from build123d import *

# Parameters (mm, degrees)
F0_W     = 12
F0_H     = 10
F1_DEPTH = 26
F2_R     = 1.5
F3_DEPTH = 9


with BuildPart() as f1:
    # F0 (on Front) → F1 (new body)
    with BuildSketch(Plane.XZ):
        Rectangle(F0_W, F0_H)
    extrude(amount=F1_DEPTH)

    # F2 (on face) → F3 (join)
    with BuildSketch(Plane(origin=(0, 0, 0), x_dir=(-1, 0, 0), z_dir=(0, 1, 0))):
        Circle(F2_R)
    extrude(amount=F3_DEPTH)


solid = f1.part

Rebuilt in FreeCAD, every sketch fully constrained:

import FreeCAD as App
import Part
import Sketcher

V = App.Vector

doc = App.newDocument("Part")
body = doc.addObject("PartDesign::Body", "Body")

# Sketch on XZ plane
sketch1 = doc.addObject("Sketcher::SketchObject", "Sketch")
body.addObject(sketch1)
sketch1.AttachmentSupport = (doc.XZ_Plane, [""])
sketch1.MapMode = "FlatFace"
sketch1.addGeometry([
    Part.LineSegment(V(-6, 5, 0), V(-6, -5, 0)),
    Part.LineSegment(V(-6, -5, 0), V(6, -5, 0)),
    Part.LineSegment(V(6, -5, 0), V(6, 5, 0)),
    Part.LineSegment(V(6, 5, 0), V(-6, 5, 0)),
], False)
sketch1.addConstraint([
    Sketcher.Constraint("Coincident", 0, 2, 1, 1),
    Sketcher.Constraint("Coincident", 1, 2, 2, 1),
    Sketcher.Constraint("Coincident", 2, 2, 3, 1),
    Sketcher.Constraint("Coincident", 3, 2, 0, 1),
    Sketcher.Constraint("Vertical", 0),
    Sketcher.Constraint("Horizontal", 1),
    Sketcher.Constraint("Vertical", 2),
    Sketcher.Constraint("Horizontal", 3),
    Sketcher.Constraint("Symmetric", 0, 2, 2, 2, -1, 1),
    Sketcher.Constraint("DistanceX", 1, 1, 1, 2, 12.0),
    Sketcher.Constraint("DistanceY", 0, 2, 0, 1, 10.0),
])
pad1 = doc.addObject("PartDesign::Pad", "Pad")
body.addObject(pad1)
pad1.Profile = sketch1
pad1.Length = 26

# Sketch on XZ plane
sketch2 = doc.addObject("Sketcher::SketchObject", "Sketch001")
body.addObject(sketch2)
sketch2.AttachmentSupport = (doc.XZ_Plane, [""])
sketch2.MapMode = "FlatFace"
sketch2.addGeometry(Part.Circle(V(0, 0, 0), V(0, 0, 1), 1.5), False)
sketch2.addConstraint([
    Sketcher.Constraint("Coincident", 0, 3, -1, 1),
    Sketcher.Constraint("Diameter", 0, 3.0),
])
pad2 = doc.addObject("PartDesign::Pad", "Pad001")
body.addObject(pad2)
pad2.Profile = sketch2
pad2.Length = 9
pad2.Reversed = True

doc.recompute()
